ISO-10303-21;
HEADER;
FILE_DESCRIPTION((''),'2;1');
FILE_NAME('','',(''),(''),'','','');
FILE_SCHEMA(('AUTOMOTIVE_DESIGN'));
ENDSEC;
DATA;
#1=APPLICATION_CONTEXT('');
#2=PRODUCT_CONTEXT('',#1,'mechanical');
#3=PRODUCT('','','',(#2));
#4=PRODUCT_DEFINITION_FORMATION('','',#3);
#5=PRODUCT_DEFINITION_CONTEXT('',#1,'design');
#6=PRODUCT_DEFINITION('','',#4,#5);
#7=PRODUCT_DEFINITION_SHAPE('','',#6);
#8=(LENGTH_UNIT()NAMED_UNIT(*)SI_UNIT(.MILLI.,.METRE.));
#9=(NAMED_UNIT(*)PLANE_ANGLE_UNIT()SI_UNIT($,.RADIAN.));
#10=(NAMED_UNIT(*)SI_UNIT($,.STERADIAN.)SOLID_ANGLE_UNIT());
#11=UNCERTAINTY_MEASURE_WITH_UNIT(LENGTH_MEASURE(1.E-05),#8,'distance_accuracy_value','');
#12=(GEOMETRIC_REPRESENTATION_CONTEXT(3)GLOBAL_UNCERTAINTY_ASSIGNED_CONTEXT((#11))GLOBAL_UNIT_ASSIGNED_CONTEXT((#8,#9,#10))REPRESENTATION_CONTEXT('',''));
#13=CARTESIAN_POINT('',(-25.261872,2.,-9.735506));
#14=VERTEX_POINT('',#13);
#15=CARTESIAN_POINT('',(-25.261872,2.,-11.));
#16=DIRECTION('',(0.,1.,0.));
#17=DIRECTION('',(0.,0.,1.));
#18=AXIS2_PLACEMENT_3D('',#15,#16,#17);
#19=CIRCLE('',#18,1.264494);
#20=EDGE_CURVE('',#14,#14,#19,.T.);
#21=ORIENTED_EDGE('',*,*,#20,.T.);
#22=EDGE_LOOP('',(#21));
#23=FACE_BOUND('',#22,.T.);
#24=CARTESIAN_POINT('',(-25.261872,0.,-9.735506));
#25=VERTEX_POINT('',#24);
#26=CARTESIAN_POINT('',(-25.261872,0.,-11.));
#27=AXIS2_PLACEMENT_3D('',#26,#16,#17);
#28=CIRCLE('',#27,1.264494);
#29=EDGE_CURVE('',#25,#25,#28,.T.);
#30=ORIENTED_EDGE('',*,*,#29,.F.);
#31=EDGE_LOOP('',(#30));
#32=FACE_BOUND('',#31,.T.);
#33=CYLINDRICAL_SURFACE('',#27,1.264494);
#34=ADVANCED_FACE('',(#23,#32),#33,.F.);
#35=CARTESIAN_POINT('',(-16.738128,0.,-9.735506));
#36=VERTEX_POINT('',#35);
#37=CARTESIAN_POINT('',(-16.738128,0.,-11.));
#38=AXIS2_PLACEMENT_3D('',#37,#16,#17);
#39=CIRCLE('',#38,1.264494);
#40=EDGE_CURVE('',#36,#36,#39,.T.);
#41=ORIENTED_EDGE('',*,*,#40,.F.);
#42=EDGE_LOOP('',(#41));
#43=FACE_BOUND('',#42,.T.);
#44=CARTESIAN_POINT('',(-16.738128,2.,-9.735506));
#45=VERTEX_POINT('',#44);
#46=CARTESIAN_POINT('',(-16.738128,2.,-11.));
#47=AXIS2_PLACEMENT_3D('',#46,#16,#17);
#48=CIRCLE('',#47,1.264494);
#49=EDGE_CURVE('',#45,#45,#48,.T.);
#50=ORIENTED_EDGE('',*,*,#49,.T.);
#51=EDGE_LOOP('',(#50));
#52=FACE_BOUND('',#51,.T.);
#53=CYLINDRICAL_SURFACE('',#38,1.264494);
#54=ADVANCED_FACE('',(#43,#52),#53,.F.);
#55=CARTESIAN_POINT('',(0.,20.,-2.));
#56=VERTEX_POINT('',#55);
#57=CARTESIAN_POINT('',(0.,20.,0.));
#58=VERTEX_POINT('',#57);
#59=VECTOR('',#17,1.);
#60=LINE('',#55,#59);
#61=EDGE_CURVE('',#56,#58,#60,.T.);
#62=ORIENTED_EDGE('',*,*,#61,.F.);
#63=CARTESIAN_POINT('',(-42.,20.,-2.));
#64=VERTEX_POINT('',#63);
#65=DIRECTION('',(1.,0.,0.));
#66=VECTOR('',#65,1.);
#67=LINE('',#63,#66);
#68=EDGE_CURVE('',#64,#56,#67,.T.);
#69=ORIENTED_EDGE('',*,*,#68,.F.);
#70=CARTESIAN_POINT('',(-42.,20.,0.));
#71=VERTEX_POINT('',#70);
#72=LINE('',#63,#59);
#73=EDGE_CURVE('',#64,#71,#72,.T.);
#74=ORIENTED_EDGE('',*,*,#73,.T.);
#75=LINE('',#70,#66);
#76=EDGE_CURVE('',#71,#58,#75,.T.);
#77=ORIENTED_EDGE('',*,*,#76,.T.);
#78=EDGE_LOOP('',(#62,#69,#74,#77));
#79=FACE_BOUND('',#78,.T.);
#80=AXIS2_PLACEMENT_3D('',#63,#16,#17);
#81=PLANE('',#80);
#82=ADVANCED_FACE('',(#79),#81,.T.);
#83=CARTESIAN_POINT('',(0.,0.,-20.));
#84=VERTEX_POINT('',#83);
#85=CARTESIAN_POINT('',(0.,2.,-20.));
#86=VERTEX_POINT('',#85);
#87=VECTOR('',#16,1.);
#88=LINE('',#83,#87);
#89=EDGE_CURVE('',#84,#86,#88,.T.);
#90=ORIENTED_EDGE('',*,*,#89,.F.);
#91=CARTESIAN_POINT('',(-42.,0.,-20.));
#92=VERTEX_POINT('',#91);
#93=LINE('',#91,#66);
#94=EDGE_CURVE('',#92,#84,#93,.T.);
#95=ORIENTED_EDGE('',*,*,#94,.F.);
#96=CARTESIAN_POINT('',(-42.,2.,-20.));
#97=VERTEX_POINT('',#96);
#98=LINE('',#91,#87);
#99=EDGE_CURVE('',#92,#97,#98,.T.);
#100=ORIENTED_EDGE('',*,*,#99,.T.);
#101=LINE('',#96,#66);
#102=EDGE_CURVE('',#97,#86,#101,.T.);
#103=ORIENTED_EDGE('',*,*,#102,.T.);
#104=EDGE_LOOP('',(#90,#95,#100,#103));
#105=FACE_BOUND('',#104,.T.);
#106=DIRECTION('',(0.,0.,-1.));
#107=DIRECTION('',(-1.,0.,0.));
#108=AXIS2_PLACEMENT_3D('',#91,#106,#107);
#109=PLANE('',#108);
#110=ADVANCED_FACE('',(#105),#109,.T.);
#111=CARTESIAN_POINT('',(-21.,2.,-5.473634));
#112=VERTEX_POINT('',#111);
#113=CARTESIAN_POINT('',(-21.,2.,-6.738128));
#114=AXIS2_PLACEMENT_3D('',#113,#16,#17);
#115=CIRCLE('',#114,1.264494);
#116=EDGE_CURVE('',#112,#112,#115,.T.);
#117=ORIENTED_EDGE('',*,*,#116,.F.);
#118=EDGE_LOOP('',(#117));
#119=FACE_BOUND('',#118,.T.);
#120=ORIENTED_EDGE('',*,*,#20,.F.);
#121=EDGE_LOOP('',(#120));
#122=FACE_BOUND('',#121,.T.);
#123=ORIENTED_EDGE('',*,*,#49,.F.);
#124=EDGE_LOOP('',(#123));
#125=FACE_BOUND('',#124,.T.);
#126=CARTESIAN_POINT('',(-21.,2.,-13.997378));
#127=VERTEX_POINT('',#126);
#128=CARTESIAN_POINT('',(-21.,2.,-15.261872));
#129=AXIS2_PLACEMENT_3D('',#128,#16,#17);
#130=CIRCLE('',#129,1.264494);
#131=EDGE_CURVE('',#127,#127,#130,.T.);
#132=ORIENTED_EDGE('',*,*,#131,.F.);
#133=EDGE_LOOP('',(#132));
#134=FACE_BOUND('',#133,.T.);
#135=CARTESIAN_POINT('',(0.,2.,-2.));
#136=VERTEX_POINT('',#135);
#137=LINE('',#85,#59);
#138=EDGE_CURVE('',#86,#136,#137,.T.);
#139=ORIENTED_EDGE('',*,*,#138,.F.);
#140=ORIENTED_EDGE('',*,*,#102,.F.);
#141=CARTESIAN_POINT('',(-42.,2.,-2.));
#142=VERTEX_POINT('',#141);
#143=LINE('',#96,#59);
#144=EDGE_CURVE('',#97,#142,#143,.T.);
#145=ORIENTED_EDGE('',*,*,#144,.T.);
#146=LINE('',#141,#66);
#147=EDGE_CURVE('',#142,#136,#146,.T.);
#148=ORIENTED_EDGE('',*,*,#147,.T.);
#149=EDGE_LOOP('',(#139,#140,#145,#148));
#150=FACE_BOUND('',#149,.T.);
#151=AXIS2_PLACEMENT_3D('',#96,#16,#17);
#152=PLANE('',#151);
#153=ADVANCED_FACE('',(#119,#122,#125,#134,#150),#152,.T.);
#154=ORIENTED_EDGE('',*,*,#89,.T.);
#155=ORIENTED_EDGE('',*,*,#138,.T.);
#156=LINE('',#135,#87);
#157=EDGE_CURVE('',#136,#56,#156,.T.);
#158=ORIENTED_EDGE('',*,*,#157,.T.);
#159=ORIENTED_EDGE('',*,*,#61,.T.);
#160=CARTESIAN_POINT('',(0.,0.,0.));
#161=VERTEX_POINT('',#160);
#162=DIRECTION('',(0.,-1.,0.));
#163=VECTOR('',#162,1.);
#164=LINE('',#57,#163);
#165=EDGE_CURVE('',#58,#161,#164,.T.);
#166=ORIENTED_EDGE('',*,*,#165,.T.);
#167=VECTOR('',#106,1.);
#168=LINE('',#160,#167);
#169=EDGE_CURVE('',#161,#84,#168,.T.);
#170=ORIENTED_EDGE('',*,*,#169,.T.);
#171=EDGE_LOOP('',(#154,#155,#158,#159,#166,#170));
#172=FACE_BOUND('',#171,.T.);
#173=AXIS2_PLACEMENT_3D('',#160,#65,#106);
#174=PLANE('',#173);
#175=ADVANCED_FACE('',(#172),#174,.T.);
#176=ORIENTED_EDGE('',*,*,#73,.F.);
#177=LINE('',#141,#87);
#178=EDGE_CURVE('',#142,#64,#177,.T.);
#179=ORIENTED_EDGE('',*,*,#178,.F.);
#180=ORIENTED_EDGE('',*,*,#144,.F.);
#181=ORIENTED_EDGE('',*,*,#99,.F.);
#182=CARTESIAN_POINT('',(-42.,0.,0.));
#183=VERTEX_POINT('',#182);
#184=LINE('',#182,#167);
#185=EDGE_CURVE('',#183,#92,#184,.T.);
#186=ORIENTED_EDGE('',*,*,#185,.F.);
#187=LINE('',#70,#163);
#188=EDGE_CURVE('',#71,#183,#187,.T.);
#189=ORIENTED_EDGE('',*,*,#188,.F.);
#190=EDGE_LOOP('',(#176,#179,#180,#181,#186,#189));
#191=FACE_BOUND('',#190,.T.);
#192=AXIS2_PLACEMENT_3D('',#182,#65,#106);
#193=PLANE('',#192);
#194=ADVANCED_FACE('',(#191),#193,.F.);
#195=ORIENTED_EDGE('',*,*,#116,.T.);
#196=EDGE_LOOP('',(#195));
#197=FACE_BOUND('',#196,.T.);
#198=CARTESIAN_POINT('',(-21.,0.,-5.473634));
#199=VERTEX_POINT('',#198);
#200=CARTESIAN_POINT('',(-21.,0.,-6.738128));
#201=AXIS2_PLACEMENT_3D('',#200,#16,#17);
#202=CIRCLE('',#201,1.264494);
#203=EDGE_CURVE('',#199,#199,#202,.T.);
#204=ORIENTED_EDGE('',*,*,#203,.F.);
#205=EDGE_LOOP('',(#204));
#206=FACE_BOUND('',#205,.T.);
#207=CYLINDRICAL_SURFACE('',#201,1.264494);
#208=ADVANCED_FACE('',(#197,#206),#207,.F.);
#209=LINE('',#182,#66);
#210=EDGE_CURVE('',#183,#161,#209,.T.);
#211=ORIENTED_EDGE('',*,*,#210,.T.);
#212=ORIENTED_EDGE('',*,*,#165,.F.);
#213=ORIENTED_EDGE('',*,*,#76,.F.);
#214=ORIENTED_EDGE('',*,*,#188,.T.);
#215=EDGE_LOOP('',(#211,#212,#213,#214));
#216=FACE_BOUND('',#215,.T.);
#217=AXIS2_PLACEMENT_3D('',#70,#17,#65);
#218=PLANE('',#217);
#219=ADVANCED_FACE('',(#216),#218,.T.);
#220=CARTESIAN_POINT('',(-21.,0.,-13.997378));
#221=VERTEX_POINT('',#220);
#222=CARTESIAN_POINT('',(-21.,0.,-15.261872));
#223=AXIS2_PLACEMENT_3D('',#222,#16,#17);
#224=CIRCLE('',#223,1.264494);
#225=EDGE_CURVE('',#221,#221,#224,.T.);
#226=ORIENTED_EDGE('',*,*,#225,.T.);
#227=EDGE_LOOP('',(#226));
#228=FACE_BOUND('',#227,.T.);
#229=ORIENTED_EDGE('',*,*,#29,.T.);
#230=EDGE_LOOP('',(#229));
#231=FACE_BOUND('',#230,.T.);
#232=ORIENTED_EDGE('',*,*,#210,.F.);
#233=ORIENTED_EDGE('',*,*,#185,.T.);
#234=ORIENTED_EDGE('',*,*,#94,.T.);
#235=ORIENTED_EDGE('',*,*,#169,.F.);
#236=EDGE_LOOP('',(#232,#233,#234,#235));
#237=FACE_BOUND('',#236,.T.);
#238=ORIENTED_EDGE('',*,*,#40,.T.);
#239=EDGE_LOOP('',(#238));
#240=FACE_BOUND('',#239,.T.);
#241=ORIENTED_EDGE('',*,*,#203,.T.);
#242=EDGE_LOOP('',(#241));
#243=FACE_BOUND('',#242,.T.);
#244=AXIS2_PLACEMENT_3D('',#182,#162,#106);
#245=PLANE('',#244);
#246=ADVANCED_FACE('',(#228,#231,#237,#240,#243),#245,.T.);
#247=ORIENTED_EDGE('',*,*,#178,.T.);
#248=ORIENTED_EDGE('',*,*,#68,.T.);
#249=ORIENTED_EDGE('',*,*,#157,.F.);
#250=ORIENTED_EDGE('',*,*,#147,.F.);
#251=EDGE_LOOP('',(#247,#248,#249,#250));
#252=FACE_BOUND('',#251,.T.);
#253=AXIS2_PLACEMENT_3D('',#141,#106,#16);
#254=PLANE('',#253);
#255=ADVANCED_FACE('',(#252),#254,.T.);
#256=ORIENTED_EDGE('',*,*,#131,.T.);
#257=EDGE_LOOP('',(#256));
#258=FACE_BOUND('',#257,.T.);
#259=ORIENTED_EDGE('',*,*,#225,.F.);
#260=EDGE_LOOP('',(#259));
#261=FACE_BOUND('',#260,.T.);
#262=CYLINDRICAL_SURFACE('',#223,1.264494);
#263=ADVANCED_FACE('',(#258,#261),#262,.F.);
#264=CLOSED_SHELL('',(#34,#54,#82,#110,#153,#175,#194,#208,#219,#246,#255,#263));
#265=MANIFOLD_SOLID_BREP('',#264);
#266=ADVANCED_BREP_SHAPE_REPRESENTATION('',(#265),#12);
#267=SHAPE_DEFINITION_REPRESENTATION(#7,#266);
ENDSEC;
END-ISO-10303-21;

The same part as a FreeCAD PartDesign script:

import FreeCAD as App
import Part
import Sketcher

V = App.Vector
Q = App.Units.Quantity

doc = App.newDocument("Part")
body = doc.addObject("PartDesign::Body", "Body")

sketch1 = body.newObject("Sketcher::SketchObject", "Sketch")
sketch1.AttachmentSupport = (doc.getObject("YZ_Plane"), [""])
sketch1.MapMode = "FlatFace"
sketch1.addGeometry([
    Part.LineSegment(V(20, 0, 0), V(0, 0, 0)),
    Part.LineSegment(V(0, 0, 0), V(0, -20, 0)),
    Part.LineSegment(V(0, -20, 0), V(2, -20, 0)),
    Part.LineSegment(V(2, -20, 0), V(2, -2, 0)),
    Part.LineSegment(V(2, -2, 0), V(20, -2, 0)),
    Part.LineSegment(V(20, -2, 0), V(20, 0, 0)),
], False)
sketch1.addConstraint([
    Sketcher.Constraint("Coincident", 0, 2, 1, 1),
    Sketcher.Constraint("Coincident", 1, 2, 2, 1),
    Sketcher.Constraint("Coincident", 2, 2, 3, 1),
    Sketcher.Constraint("Coincident", 3, 2, 4, 1),
    Sketcher.Constraint("Coincident", 4, 2, 5, 1),
    Sketcher.Constraint("Coincident", 5, 2, 0, 1),
    Sketcher.Constraint("Horizontal", 0),
    Sketcher.Constraint("Vertical", 1),
    Sketcher.Constraint("Horizontal", 2),
    Sketcher.Constraint("Vertical", 3),
    Sketcher.Constraint("Horizontal", 4),
    Sketcher.Constraint("Vertical", 5),
    Sketcher.Constraint("Coincident", 0, 2, -1, 1),
    Sketcher.Constraint("Equal", 0, 1),
    Sketcher.Constraint("Equal", 4, 3),
    Sketcher.Constraint("DistanceX", 0, 2, 0, 1, Q("20 mm")),
    Sketcher.Constraint("DistanceX", 2, 1, 2, 2, Q("2 mm")),
])
pad1 = body.newObject("PartDesign::Pad", "Pad")
pad1.Profile = sketch1
pad1.Length = 42
pad1.Reversed = True

sketch2 = body.newObject("Sketcher::SketchObject", "Sketch001")
sketch2.AttachmentSupport = (doc.getObject("XZ_Plane"), [""])
sketch2.MapMode = "FlatFace"
sketch2.AttachmentOffset = App.Placement(V(0, 0, -2), App.Rotation())
sketch2.addGeometry([
    Part.Circle(V(-21, -15.261872, 0), V(0, 0, 1), 1.264494),
    Part.Circle(V(-16.738128, -11, 0), V(0, 0, 1), 1.264494),
    Part.Circle(V(-21, -6.738128, 0), V(0, 0, 1), 1.264494),
    Part.Circle(V(-25.261872, -11, 0), V(0, 0, 1), 1.264494),
], False)
sketch2.addConstraint([
    Sketcher.Constraint("Equal", 0, 1),
    Sketcher.Constraint("Equal", 1, 2),
    Sketcher.Constraint("Equal", 2, 3),
    Sketcher.Constraint("Horizontal", 1, 3, 3, 3),
    Sketcher.Constraint("Vertical", 0, 3, 2, 3),
    Sketcher.Constraint("DistanceX", 0, 3, -1, 1, Q("21 mm")),
    Sketcher.Constraint("DistanceY", 1, 3, -1, 1, Q("11 mm")),
    Sketcher.Constraint("Diameter", 0, Q("2.528988 mm")),
    Sketcher.Constraint("DistanceY", 0, 3, -1, 1, Q("15.261872 mm")),
    Sketcher.Constraint("DistanceX", 1, 3, -1, 1, Q("16.738128 mm")),
    Sketcher.Constraint("DistanceY", 2, 3, -1, 1, Q("6.738128 mm")),
    Sketcher.Constraint("DistanceX", 3, 3, -1, 1, Q("25.261872 mm")),
])
pocket1 = body.newObject("PartDesign::Pocket", "Pocket")
pocket1.Profile = sketch2
pocket1.Type = "ThroughAll"
pocket1.Reversed = True

doc.recompute()
